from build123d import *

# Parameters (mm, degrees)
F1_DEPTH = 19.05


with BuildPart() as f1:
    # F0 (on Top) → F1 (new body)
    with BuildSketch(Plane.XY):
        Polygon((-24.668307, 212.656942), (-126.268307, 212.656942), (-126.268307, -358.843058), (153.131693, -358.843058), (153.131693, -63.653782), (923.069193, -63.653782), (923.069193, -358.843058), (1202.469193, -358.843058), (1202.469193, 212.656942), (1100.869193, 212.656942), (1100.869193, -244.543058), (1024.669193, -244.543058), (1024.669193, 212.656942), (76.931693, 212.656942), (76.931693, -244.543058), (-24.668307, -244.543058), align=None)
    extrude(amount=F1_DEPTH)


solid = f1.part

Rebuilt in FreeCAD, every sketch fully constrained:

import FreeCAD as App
import Part
import Sketcher

V = App.Vector
Q = App.Units.Quantity

doc = App.newDocument("Part")
body = doc.addObject("PartDesign::Body", "Body")

# Sketch on XY plane
sketch1 = body.newObject("Sketcher::SketchObject", "Sketch")
sketch1.AttachmentSupport = (doc.getObject("XY_Plane"), [""])
sketch1.MapMode = "FlatFace"
sketch1.addGeometry([
    Part.LineSegment(V(-25, 213, 0), V(-126, 213, 0)),  # 0
    Part.LineSegment(V(-126, 213, 0), V(-126, -359, 0)),  # 1
    Part.LineSegment(V(-126, -359, 0), V(153, -359, 0)),  # 2
    Part.LineSegment(V(153, -359, 0), V(153, -64, 0)),  # 3
    Part.LineSegment(V(153, -64, 0), V(923, -64, 0)),  # 4
    Part.LineSegment(V(923, -64, 0), V(923, -359, 0)),  # 5
    Part.LineSegment(V(923, -359, 0), V(1202, -359, 0)),  # 6
    Part.LineSegment(V(1202, -359, 0), V(1202, 213, 0)),  # 7
    Part.LineSegment(V(1202, 213, 0), V(1101, 213, 0)),  # 8
    Part.LineSegment(V(1101, 213, 0), V(1101, -245, 0)),  # 9
    Part.LineSegment(V(1101, -245, 0), V(1025, -245, 0)),  # 10
    Part.LineSegment(V(1025, -245, 0), V(1025, 213, 0)),  # 11
    Part.LineSegment(V(1025, 213, 0), V(77, 213, 0)),  # 12
    Part.LineSegment(V(77, 213, 0), V(77, -245, 0)),  # 13
    Part.LineSegment(V(77, -245, 0), V(-25, -245, 0)),  # 14
    Part.LineSegment(V(-25, -245, 0), V(-25, 213, 0)),  # 15
], False)
sketch1.addConstraint([
    Sketcher.Constraint("Coincident", 0, 2, 1, 1),
    Sketcher.Constraint("Coincident", 1, 2, 2, 1),
    Sketcher.Constraint("Coincident", 2, 2, 3, 1),
    Sketcher.Constraint("Coincident", 3, 2, 4, 1),
    Sketcher.Constraint("Coincident", 4, 2, 5, 1),
    Sketcher.Constraint("Coincident", 5, 2, 6, 1),
    Sketcher.Constraint("Coincident", 6, 2, 7, 1),
    Sketcher.Constraint("Coincident", 7, 2, 8, 1),
    Sketcher.Constraint("Coincident", 8, 2, 9, 1),
    Sketcher.Constraint("Coincident", 9, 2, 10, 1),
    Sketcher.Constraint("Coincident", 10, 2, 11, 1),
    Sketcher.Constraint("Coincident", 11, 2, 12, 1),
    Sketcher.Constraint("Coincident", 12, 2, 13, 1),
    Sketcher.Constraint("Coincident", 13, 2, 14, 1),
    Sketcher.Constraint("Coincident", 14, 2, 15, 1),
    Sketcher.Constraint("Coincident", 15, 2, 0, 1),
    Sketcher.Constraint("Horizontal", 0),
    Sketcher.Constraint("Vertical", 1),
    Sketcher.Constraint("Horizontal", 2),
    Sketcher.Constraint("Vertical", 3),
    Sketcher.Constraint("Horizontal", 4),
    Sketcher.Constraint("Vertical", 5),
    Sketcher.Constraint("Horizontal", 6),
    Sketcher.Constraint("Vertical", 7),
    Sketcher.Constraint("Horizontal", 8),
    Sketcher.Constraint("Vertical", 9),
    Sketcher.Constraint("Horizontal", 10),
    Sketcher.Constraint("Vertical", 11),
    Sketcher.Constraint("Horizontal", 12),
    Sketcher.Constraint("Vertical", 13),
    Sketcher.Constraint("Horizontal", 14),
    Sketcher.Constraint("Vertical", 15),
    Sketcher.Constraint("Horizontal", 2, 2, 5, 2),
    Sketcher.Constraint("Horizontal", 0, 2, 7, 2),
    Sketcher.Constraint("Horizontal", 8, 2, 11, 2),
    Sketcher.Constraint("Horizontal", 10, 2, 13, 2),
    Sketcher.Constraint("Equal", 2, 6),
    Sketcher.Constraint("Equal", 0, 8),
    Sketcher.Constraint("Equal", 8, 14),
    Sketcher.Constraint("DistanceX", 0, 2, 0, 1, Q("4 in")),
    Sketcher.Constraint("DistanceX", 2, 1, 2, 2, Q("11 in")),
    Sketcher.Constraint("DistanceX", 10, 2, 10, 1, Q("3 in")),
    Sketcher.Constraint("DistanceY", 9, 2, 9, 1, Q("18 in")),
    Sketcher.Constraint("DistanceY", 1, 2, 1, 1, Q("22.5 in")),
    Sketcher.Constraint("DistanceX", 4, 1, 4, 2, Q("30.3125 in")),
    Sketcher.Constraint("DistanceY", 3, 1, 3, 2, 295.189276),
    Sketcher.Constraint("DistanceY", -1, 1, 0, 2, 212.656942),
    Sketcher.Constraint("DistanceX", 0, 2, -1, 1, 126.268307),
])
pad1 = body.newObject("PartDesign::Pad", "Pad")
pad1.Profile = sketch1
pad1.Length = Q("0.75 in")

doc.recompute()
